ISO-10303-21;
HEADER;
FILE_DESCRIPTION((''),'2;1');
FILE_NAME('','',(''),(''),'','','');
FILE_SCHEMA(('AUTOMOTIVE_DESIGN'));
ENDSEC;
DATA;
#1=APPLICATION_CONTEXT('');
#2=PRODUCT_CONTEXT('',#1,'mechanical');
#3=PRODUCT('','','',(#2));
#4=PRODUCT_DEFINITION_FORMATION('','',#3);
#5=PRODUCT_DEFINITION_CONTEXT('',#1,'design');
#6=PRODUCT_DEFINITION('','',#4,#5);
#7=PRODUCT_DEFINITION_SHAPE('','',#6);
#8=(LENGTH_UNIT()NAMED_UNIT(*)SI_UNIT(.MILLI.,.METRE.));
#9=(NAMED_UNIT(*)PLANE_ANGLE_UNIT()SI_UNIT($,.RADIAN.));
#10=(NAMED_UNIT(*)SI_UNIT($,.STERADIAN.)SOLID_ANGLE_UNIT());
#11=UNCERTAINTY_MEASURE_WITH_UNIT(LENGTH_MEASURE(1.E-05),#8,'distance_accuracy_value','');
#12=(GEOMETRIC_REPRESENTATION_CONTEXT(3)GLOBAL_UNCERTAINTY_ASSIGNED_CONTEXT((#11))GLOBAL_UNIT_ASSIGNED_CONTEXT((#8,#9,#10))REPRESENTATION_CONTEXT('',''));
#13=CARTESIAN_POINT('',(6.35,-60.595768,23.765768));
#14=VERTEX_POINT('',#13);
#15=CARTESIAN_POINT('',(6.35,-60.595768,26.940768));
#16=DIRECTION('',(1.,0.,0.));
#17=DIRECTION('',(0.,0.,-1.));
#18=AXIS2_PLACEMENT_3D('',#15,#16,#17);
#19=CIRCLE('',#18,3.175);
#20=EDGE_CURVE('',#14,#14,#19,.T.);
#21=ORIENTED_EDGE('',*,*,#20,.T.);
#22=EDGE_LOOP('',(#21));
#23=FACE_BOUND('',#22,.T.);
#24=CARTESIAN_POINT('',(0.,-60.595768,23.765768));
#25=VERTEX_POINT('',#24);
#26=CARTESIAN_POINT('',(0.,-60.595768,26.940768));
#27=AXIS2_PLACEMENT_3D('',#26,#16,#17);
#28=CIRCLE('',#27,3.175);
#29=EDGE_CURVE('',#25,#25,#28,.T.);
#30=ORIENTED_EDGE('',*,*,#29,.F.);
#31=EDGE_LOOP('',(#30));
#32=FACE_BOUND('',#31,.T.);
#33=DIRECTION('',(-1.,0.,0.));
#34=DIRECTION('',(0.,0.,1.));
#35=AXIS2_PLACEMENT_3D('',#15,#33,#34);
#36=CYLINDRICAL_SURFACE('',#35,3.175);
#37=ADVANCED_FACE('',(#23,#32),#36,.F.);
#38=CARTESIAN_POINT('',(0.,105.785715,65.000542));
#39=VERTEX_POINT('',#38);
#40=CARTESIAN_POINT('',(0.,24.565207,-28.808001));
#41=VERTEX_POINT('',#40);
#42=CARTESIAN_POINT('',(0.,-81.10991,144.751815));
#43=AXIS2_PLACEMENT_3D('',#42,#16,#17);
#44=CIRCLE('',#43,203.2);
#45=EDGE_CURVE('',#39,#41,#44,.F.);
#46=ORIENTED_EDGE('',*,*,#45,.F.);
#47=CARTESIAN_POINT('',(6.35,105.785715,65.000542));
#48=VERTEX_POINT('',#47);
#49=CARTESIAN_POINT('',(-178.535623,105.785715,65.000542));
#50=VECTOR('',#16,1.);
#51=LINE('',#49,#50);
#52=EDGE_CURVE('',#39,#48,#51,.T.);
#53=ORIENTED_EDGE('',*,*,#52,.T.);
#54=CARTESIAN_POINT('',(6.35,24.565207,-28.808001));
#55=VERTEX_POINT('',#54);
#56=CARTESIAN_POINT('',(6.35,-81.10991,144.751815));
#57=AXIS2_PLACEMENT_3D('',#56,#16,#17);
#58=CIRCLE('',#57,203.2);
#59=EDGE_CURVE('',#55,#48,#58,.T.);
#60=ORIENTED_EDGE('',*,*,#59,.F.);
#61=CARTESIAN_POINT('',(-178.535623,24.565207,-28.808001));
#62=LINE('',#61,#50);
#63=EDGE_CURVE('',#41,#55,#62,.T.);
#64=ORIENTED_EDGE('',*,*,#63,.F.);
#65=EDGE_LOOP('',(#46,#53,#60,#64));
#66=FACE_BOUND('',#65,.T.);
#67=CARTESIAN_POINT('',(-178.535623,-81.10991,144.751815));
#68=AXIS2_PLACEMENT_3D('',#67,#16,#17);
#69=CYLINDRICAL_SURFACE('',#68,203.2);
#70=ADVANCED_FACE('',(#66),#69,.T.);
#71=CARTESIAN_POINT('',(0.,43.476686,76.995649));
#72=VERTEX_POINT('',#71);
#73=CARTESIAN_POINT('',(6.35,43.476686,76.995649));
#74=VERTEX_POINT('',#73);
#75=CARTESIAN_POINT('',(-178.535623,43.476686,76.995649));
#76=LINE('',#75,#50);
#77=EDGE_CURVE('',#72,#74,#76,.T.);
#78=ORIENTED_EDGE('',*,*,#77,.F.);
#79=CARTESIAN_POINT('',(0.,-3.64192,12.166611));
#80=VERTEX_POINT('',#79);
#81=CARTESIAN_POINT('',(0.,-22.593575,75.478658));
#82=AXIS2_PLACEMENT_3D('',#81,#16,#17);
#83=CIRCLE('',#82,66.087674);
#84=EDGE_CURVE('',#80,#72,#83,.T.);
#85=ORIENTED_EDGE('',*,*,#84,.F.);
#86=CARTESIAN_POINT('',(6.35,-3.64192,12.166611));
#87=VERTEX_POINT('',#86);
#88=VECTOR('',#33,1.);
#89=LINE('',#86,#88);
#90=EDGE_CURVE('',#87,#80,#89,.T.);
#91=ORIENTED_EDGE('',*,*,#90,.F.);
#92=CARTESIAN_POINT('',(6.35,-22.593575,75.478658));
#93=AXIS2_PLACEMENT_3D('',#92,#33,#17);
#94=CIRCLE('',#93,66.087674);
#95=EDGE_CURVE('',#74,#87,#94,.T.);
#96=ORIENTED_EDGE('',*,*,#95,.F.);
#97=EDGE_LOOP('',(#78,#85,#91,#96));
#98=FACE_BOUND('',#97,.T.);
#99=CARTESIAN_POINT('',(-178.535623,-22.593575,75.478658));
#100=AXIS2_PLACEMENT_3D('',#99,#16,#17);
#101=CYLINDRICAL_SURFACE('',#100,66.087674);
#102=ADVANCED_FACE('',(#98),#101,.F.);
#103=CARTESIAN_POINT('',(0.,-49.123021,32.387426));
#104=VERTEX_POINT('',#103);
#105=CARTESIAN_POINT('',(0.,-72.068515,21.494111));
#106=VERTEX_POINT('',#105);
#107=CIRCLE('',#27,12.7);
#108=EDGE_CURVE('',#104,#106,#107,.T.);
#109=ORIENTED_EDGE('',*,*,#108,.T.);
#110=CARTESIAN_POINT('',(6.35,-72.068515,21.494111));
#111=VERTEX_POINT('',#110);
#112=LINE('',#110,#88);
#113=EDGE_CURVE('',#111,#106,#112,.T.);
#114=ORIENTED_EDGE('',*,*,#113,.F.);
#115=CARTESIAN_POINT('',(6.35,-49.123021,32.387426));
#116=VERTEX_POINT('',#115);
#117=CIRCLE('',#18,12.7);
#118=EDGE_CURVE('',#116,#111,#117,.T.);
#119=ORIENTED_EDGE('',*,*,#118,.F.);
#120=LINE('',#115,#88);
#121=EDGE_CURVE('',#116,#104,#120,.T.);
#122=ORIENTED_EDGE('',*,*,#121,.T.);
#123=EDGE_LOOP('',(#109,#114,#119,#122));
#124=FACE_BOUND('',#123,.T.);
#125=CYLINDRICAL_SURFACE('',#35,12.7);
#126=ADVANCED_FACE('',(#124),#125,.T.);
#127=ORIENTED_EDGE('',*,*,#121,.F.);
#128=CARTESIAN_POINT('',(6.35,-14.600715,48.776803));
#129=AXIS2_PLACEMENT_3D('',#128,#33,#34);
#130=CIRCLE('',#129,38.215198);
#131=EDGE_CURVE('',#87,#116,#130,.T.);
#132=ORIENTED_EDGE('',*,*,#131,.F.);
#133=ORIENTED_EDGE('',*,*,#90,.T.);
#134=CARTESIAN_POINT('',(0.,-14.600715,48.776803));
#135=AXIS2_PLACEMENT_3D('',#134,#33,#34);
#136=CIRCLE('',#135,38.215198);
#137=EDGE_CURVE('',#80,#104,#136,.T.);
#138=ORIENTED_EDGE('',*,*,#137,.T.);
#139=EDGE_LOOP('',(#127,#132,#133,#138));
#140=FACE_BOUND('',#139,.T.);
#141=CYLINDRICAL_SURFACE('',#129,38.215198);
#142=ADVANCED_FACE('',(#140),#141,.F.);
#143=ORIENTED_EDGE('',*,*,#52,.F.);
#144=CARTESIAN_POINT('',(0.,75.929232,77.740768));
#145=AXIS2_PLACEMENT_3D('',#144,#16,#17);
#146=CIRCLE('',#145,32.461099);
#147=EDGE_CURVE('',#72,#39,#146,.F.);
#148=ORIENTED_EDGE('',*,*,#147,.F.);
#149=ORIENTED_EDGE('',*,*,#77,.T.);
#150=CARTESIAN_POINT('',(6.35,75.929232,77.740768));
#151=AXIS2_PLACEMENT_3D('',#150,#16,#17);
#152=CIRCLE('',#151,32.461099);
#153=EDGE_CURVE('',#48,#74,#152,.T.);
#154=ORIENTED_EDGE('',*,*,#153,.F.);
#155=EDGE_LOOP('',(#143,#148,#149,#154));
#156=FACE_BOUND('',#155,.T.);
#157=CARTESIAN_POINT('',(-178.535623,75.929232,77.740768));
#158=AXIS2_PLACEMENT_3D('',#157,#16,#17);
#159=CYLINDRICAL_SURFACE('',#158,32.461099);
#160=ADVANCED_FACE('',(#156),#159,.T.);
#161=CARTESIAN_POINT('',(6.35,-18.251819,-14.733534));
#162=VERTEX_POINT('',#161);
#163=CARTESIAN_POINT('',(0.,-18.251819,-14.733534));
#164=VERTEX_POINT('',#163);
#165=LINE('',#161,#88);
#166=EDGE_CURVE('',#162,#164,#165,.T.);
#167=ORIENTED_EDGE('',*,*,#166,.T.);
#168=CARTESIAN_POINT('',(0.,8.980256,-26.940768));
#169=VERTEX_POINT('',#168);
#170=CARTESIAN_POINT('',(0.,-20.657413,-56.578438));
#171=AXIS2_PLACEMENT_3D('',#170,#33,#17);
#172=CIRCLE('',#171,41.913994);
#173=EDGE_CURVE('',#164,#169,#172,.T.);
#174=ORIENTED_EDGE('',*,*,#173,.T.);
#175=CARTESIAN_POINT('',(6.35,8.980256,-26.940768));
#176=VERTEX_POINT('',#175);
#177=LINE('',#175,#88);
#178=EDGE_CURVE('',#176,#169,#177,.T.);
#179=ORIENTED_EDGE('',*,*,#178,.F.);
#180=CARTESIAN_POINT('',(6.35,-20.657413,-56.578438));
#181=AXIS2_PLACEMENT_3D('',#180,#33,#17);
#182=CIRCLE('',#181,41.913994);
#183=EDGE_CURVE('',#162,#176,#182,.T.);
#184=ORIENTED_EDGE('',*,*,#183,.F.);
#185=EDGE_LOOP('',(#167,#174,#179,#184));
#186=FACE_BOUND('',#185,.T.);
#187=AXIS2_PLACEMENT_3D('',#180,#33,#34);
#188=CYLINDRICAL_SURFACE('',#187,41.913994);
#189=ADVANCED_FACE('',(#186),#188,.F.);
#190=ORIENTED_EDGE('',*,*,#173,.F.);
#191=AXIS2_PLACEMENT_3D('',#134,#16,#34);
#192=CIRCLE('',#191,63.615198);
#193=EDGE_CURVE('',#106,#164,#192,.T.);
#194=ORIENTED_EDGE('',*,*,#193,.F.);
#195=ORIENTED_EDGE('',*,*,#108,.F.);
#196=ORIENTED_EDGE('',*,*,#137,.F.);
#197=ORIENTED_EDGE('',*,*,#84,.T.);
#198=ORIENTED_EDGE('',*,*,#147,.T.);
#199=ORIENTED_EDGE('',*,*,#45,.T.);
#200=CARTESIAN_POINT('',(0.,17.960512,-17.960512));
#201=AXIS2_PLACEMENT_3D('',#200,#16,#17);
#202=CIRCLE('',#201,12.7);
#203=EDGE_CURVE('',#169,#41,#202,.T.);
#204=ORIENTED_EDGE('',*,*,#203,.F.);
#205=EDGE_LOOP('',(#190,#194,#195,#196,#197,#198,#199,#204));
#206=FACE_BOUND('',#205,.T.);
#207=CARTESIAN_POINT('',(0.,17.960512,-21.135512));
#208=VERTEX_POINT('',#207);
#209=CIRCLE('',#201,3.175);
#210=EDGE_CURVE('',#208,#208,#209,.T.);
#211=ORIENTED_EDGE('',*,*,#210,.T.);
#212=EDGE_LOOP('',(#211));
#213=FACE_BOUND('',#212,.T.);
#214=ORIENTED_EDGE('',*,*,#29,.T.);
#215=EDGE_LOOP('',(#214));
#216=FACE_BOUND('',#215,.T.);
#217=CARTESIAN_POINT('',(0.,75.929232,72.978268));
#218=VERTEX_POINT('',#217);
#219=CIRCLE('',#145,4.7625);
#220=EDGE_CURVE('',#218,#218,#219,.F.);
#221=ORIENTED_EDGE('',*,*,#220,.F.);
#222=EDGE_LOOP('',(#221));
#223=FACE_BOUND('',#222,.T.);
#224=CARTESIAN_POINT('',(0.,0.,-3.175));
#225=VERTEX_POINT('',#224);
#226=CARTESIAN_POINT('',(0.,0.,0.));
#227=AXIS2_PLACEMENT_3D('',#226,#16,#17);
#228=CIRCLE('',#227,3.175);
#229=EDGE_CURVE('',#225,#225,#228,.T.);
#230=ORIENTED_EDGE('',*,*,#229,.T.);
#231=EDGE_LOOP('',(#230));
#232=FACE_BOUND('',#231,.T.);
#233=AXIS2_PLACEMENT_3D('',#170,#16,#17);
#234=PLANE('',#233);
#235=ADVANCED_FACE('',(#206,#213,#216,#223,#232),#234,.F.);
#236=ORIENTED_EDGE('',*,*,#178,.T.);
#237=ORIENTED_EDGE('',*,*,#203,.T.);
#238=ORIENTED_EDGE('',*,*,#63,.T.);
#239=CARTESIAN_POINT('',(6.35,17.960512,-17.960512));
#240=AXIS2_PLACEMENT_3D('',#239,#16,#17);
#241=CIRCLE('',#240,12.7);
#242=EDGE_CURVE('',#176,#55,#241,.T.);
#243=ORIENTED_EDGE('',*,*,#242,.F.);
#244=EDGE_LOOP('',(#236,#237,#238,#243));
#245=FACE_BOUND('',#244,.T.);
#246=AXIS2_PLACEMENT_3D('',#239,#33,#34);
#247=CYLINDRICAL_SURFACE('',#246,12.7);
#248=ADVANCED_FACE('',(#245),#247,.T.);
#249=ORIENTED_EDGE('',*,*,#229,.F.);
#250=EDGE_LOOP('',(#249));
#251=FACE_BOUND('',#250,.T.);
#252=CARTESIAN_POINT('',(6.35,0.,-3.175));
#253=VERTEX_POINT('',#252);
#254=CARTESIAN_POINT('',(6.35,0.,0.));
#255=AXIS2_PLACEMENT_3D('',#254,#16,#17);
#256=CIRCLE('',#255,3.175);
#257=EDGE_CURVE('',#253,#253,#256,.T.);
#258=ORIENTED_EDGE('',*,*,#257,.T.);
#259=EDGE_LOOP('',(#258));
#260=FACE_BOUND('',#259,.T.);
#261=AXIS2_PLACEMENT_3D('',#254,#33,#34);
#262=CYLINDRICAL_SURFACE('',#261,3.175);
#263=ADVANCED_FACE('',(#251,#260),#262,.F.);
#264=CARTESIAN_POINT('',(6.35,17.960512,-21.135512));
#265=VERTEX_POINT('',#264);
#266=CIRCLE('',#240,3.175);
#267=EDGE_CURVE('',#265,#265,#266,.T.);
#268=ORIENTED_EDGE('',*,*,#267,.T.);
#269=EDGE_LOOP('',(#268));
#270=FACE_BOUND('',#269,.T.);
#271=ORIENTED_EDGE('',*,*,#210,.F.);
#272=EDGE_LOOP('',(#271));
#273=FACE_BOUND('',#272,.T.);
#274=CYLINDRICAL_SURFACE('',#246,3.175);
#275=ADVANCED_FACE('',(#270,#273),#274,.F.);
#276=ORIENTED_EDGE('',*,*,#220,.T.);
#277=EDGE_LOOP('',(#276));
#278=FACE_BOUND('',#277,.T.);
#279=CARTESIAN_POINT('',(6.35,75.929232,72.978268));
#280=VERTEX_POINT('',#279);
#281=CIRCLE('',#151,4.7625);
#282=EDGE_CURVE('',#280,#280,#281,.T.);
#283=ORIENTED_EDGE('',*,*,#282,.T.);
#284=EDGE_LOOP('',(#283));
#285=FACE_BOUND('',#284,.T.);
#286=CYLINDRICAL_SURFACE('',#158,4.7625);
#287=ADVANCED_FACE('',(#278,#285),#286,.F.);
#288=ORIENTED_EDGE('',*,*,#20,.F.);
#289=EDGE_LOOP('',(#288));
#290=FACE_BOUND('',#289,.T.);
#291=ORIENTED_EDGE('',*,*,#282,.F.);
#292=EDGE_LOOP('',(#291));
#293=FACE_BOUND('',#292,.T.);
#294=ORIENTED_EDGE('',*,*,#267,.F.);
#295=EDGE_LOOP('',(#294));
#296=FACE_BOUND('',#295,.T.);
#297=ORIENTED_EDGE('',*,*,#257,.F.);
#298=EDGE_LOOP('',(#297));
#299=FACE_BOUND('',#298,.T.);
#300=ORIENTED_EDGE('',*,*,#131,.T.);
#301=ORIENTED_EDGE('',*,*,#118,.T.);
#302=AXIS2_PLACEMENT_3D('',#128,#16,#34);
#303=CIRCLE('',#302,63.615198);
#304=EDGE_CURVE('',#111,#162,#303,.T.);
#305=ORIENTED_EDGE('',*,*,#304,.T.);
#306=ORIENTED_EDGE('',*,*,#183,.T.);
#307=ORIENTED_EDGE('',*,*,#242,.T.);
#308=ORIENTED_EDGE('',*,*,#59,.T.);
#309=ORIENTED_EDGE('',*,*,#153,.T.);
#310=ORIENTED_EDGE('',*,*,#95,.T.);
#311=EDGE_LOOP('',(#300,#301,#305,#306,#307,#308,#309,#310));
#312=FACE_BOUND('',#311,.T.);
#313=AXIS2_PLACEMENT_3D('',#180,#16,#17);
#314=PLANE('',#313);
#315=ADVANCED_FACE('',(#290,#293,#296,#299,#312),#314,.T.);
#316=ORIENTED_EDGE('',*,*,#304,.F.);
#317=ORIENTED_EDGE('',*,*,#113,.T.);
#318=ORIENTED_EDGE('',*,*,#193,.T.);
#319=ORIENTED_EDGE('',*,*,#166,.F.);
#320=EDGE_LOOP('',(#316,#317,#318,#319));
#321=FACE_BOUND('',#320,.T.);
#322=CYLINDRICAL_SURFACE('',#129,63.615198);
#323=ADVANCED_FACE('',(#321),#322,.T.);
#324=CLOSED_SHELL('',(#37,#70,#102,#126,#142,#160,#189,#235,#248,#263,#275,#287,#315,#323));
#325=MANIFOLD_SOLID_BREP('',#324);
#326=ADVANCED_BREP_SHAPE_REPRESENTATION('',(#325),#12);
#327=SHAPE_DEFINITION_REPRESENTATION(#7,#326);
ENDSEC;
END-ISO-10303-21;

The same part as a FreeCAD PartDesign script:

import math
import FreeCAD as App
import Part
import Sketcher

V = App.Vector
Q = App.Units.Quantity

doc = App.newDocument("Part")
body = doc.addObject("PartDesign::Body", "Body")

# Sketch on YZ plane
sketch1 = body.newObject("Sketcher::SketchObject", "Sketch")
sketch1.AttachmentSupport = (doc.getObject("YZ_Plane"), [""])
sketch1.MapMode = "FlatFace"
sketch1.addGeometry(Part.LineSegment(V(26.9, -9, 0), V(9, 9, 0)), False)
sketch1.addGeometry(Part.ArcOfCircle(Part.Circle(V(0, 0, 0), V(0, 0, 1), 12.7), math.radians(45), math.radians(107)), False)
sketch1.addGeometry(Part.ArcOfCircle(Part.Circle(V(-14.6, 48.8, 0), V(0, 0, 1), 38.2), math.radians(-155), math.radians(-73)), False)
sketch1.addGeometry(Part.ArcOfCircle(Part.Circle(V(-60.6, 26.9, 0), V(0, 0, 1), 12.7), math.radians(25), math.radians(205)), False)
sketch1.addGeometry(Part.ArcOfCircle(Part.Circle(V(-14.6, 48.8, 0), V(0, 0, 1), 63.6), math.radians(-155), math.radians(-93)), False)
sketch1.addGeometry(Part.ArcOfCircle(Part.Circle(V(-20.7, -56.6, 0), V(0, 0, 1), 41.9), math.radians(45), math.radians(87)), False)
sketch1.addGeometry(Part.ArcOfCircle(Part.Circle(V(18, -18, 0), V(0, 0, 1), 12.7), math.radians(-135), math.radians(45)), False)
sketch1.addGeometry(Part.Circle(V(-60.6, 26.9, 0), V(0, 0, 1), 3.2), False)
sketch1.addGeometry(Part.Circle(V(18, -18, 0), V(0, 0, 1), 3.2), False)
sketch1.addGeometry(Part.Circle(V(0, 0, 0), V(0, 0, 1), 3.2), False)
sketch1.addConstraint(Sketcher.Constraint("Tangent", 0, 2, 1, 1))
sketch1.addConstraint(Sketcher.Constraint("Tangent", 1, 2, 2, 2))
sketch1.addConstraint(Sketcher.Constraint("Tangent", 2, 1, 3, 1))
sketch1.addConstraint(Sketcher.Constraint("Tangent", 3, 2, 4, 1))
sketch1.addConstraint(Sketcher.Constraint("Tangent", 4, 2, 5, 2))
sketch1.addConstraint(Sketcher.Constraint("Tangent", 5, 1, 6, 1))
sketch1.addConstraint(Sketcher.Constraint("Tangent", 6, 2, 0, 1))
sketch1.addConstraint(Sketcher.Constraint("Coincident", 1, 3, -1, 1))
sketch1.addConstraint(Sketcher.Constraint("Coincident", 9, 3, -1, 1))
sketch1.addConstraint(Sketcher.Constraint("Coincident", 4, 3, 2, 3))
sketch1.addConstraint(Sketcher.Constraint("Coincident", 7, 3, 3, 3))
sketch1.addConstraint(Sketcher.Constraint("Coincident", 8, 3, 6, 3))
sketch1.addConstraint(Sketcher.Constraint("Equal", 1, 3))
sketch1.addConstraint(Sketcher.Constraint("Equal", 3, 6))
sketch1.addConstraint(Sketcher.Constraint("Equal", 7, 8))
sketch1.addConstraint(Sketcher.Constraint("Equal", 8, 9))
sketch1.addConstraint(Sketcher.Constraint("Vertical", 0, 2, 5, 1))
sketch1.addConstraint(Sketcher.Constraint("Radius", 1, Q("0.5 in")))
sketch1.addConstraint(Sketcher.Constraint("Diameter", 7, Q("0.25 in")))
sketch1.addConstraint(Sketcher.Constraint("Distance", 0, Q("1 in")))
sketch1.addConstraint(Sketcher.Constraint("Angle", 0, Q("135 deg")))
sketch1.addConstraint(Sketcher.Constraint("Radius", 2, 38.215198))
sketch1.addConstraint(Sketcher.Constraint("Radius", 5, 41.913994))
sketch1.addConstraint(Sketcher.Constraint("DistanceX", 2, 1, 1, 2, 45.481101))
pad1 = body.newObject("PartDesign::Pad", "Pad")
pad1.Profile = sketch1
pad1.Length = Q("0.25 in")

# Sketch on YZ plane
sketch2 = body.newObject("Sketcher::SketchObject", "Sketch001")
sketch2.AttachmentSupport = (doc.getObject("YZ_Plane"), [""])
sketch2.MapMode = "FlatFace"
sketch2.addGeometry(Part.LineSegment(V(9, 9, 0), V(26.9, -9, 0)), False)
sketch2.addGeometry(Part.ArcOfCircle(Part.Circle(V(18, -18, 0), V(0, 0, 1), 12.7), math.radians(-59), math.radians(45)), False)
sketch2.addGeometry(Part.ArcOfCircle(Part.Circle(V(-81.1, 144.8, 0), V(0, 0, 1), 203.2), math.radians(-59), math.radians(-23)), False)
sketch2.addGeometry(Part.ArcOfCircle(Part.Circle(V(75.9, 77.7, 0), V(0, 0, 1), 32.5), math.radians(-23), math.radians(181)), False)
sketch2.addGeometry(Part.ArcOfCircle(Part.Circle(V(-22.6, 75.5, 0), V(0, 0, 1), 66.1), math.radians(-73), math.radians(1)), False)
sketch2.addGeometry(Part.ArcOfCircle(Part.Circle(V(0, 0, 0), V(0, 0, 1), 12.7), math.radians(45), math.radians(107)), False)
sketch2.addGeometry(Part.Circle(V(75.9, 77.7, 0), V(0, 0, 1), 4.8), False)
sketch2.addConstraint(Sketcher.Constraint("Tangent", 0, 2, 1, 2))
sketch2.addConstraint(Sketcher.Constraint("Tangent", 1, 1, 2, 1))
sketch2.addConstraint(Sketcher.Constraint("Tangent", 2, 2, 3, 1))
sketch2.addConstraint(Sketcher.Constraint("Tangent", 3, 2, 4, 2))
sketch2.addConstraint(Sketcher.Constraint("Tangent", 4, 1, 5, 2))
sketch2.addConstraint(Sketcher.Constraint("Tangent", 5, 1, 0, 1))
sketch2.addConstraint(Sketcher.Constraint("Coincident", 5, 3, -1, 1))
sketch2.addConstraint(Sketcher.Constraint("Coincident", 6, 3, 3, 3))
sketch2.addConstraint(Sketcher.Constraint("Equal", 1, 5))
sketch2.addConstraint(Sketcher.Constraint("Radius", 2, Q("8 in")))
sketch2.addConstraint(Sketcher.Constraint("Radius", 1, Q("0.5 in")))
sketch2.addConstraint(Sketcher.Constraint("Distance", 0, Q("1 in")))
sketch2.addConstraint(Sketcher.Constraint("Diameter", 6, Q("0.375 in")))
sketch2.addConstraint(Sketcher.Constraint("Angle", 0, Q("-45 deg")))
sketch2.addConstraint(Sketcher.Constraint("Radius", 3, 32.461099))
sketch2.addConstraint(Sketcher.Constraint("Radius", 4, 66.087674))
sketch2.addConstraint(Sketcher.Constraint("DistanceY", 1, 1, -1, 1, 28.808001))
sketch2.addConstraint(Sketcher.Constraint("DistanceY", 0, 2, 2, 2, 73.980798))
pad2 = body.newObject("PartDesign::Pad", "Pad001")
pad2.Profile = sketch2
pad2.Length = Q("0.25 in")

doc.recompute()
